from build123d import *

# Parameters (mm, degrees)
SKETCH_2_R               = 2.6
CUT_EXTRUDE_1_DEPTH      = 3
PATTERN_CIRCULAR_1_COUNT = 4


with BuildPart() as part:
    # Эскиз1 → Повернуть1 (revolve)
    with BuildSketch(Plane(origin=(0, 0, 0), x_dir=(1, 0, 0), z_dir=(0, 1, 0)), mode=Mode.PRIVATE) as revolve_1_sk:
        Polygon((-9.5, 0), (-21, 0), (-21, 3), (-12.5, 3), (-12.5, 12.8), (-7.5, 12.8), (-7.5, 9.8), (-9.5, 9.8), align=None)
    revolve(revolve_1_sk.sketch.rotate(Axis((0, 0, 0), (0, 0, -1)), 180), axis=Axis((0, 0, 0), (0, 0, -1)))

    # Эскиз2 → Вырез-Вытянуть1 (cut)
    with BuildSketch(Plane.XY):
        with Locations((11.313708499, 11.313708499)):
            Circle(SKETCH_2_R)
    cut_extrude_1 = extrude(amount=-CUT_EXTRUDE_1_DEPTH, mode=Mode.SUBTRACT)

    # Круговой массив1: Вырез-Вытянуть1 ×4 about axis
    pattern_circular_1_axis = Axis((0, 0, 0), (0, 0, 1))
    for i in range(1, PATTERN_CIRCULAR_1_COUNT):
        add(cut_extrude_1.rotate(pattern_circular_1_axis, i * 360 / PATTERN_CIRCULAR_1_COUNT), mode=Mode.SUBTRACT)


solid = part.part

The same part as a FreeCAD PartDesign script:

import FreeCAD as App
import Part
import Sketcher
from FreeCAD import Vector
Q = App.Units.Quantity


def add_polygon(sketch, points):
    """Adds a closed chain of lines whose ends are joined by coincident constraints."""
    first, n = sketch.GeometryCount, len(points)
    for a, b in zip(points, points[1:] + points[:1]):
        sketch.addGeometry(Part.LineSegment(App.Vector(*a, 0), App.Vector(*b, 0)), False)
    for i in range(n):
        sketch.addConstraint(Sketcher.Constraint("Coincident", first + i, 2, first + (i + 1) % n, 1))

doc = App.newDocument("Part")
body = doc.addObject("PartDesign::Body", "Body")

sketch1 = body.newObject("Sketcher::SketchObject", "Sketch")
sketch1.AttachmentSupport = (doc.getObject("XZ_Plane"), [""])
sketch1.MapMode = "FlatFace"
add_polygon(sketch1, [(-21, 0), (-9.5, 0), (-9.5, -9.8), (-7.5, -9.8), (-7.5, -12.8), (-12.5, -12.8), (-12.5, -3), (-21, -3)])
sketch1.addConstraint([
    Sketcher.Constraint("Horizontal", 0),
    Sketcher.Constraint("Vertical", 1),
    Sketcher.Constraint("Horizontal", 2),
    Sketcher.Constraint("Vertical", 3),
    Sketcher.Constraint("Horizontal", 4),
    Sketcher.Constraint("Vertical", 5),
    Sketcher.Constraint("Horizontal", 6),
    Sketcher.Constraint("Vertical", 7),
    Sketcher.Constraint("PointOnObject", 0, 2, -1),
    Sketcher.Constraint("Equal", 1, 5),
    Sketcher.Constraint("DistanceX", 2, 1, 2, 2, Q("2 mm")),
    Sketcher.Constraint("DistanceX", 4, 2, 4, 1, Q("5 mm")),
    Sketcher.Constraint("DistanceY", 3, 2, 3, 1, Q("3 mm")),
    Sketcher.Constraint("DistanceX", 0, 1, 0, 2, Q("11.5 mm")),
    Sketcher.Constraint("DistanceY", 1, 2, 1, 1, Q("9.8 mm")),
    Sketcher.Constraint("DistanceX", 6, 2, -1, 1, Q("21 mm")),
])
revolution = body.newObject("PartDesign::Revolution", "Revolution")
revolution.Profile = sketch1
revolution.ReferenceAxis = (sketch1, ["V_Axis"])
revolution.Angle = 360

sketch2 = body.newObject("Sketcher::SketchObject", "Sketch001")
sketch2.AttachmentSupport = (doc.getObject("XY_Plane"), [""])
sketch2.MapMode = "FlatFace"
sketch2.addGeometry(Part.Circle(Vector(11.3, 11.3, 0), Vector(0, 0, 1), 2.6), False)
sketch2.addConstraint([
    Sketcher.Constraint("Diameter", 0, Q("5.2 mm")),
    Sketcher.Constraint("DistanceX", -1, 1, 0, 3, Q("11.313708 mm")),
    Sketcher.Constraint("DistanceY", -1, 1, 0, 3, Q("11.313708 mm")),
])
pocket1 = body.newObject("PartDesign::Pocket", "Pocket")
pocket1.Profile = sketch2
pocket1.Length = 3
doc.recompute()

polarpattern = body.newObject("PartDesign::PolarPattern", "PolarPattern")
polarpattern.Originals = [pocket1]
polarpattern.Axis = (doc.getObject("Z_Axis"), [""])
polarpattern.Angle = 360
polarpattern.Occurrences = 4
body.Tip = polarpattern

doc.recompute()
